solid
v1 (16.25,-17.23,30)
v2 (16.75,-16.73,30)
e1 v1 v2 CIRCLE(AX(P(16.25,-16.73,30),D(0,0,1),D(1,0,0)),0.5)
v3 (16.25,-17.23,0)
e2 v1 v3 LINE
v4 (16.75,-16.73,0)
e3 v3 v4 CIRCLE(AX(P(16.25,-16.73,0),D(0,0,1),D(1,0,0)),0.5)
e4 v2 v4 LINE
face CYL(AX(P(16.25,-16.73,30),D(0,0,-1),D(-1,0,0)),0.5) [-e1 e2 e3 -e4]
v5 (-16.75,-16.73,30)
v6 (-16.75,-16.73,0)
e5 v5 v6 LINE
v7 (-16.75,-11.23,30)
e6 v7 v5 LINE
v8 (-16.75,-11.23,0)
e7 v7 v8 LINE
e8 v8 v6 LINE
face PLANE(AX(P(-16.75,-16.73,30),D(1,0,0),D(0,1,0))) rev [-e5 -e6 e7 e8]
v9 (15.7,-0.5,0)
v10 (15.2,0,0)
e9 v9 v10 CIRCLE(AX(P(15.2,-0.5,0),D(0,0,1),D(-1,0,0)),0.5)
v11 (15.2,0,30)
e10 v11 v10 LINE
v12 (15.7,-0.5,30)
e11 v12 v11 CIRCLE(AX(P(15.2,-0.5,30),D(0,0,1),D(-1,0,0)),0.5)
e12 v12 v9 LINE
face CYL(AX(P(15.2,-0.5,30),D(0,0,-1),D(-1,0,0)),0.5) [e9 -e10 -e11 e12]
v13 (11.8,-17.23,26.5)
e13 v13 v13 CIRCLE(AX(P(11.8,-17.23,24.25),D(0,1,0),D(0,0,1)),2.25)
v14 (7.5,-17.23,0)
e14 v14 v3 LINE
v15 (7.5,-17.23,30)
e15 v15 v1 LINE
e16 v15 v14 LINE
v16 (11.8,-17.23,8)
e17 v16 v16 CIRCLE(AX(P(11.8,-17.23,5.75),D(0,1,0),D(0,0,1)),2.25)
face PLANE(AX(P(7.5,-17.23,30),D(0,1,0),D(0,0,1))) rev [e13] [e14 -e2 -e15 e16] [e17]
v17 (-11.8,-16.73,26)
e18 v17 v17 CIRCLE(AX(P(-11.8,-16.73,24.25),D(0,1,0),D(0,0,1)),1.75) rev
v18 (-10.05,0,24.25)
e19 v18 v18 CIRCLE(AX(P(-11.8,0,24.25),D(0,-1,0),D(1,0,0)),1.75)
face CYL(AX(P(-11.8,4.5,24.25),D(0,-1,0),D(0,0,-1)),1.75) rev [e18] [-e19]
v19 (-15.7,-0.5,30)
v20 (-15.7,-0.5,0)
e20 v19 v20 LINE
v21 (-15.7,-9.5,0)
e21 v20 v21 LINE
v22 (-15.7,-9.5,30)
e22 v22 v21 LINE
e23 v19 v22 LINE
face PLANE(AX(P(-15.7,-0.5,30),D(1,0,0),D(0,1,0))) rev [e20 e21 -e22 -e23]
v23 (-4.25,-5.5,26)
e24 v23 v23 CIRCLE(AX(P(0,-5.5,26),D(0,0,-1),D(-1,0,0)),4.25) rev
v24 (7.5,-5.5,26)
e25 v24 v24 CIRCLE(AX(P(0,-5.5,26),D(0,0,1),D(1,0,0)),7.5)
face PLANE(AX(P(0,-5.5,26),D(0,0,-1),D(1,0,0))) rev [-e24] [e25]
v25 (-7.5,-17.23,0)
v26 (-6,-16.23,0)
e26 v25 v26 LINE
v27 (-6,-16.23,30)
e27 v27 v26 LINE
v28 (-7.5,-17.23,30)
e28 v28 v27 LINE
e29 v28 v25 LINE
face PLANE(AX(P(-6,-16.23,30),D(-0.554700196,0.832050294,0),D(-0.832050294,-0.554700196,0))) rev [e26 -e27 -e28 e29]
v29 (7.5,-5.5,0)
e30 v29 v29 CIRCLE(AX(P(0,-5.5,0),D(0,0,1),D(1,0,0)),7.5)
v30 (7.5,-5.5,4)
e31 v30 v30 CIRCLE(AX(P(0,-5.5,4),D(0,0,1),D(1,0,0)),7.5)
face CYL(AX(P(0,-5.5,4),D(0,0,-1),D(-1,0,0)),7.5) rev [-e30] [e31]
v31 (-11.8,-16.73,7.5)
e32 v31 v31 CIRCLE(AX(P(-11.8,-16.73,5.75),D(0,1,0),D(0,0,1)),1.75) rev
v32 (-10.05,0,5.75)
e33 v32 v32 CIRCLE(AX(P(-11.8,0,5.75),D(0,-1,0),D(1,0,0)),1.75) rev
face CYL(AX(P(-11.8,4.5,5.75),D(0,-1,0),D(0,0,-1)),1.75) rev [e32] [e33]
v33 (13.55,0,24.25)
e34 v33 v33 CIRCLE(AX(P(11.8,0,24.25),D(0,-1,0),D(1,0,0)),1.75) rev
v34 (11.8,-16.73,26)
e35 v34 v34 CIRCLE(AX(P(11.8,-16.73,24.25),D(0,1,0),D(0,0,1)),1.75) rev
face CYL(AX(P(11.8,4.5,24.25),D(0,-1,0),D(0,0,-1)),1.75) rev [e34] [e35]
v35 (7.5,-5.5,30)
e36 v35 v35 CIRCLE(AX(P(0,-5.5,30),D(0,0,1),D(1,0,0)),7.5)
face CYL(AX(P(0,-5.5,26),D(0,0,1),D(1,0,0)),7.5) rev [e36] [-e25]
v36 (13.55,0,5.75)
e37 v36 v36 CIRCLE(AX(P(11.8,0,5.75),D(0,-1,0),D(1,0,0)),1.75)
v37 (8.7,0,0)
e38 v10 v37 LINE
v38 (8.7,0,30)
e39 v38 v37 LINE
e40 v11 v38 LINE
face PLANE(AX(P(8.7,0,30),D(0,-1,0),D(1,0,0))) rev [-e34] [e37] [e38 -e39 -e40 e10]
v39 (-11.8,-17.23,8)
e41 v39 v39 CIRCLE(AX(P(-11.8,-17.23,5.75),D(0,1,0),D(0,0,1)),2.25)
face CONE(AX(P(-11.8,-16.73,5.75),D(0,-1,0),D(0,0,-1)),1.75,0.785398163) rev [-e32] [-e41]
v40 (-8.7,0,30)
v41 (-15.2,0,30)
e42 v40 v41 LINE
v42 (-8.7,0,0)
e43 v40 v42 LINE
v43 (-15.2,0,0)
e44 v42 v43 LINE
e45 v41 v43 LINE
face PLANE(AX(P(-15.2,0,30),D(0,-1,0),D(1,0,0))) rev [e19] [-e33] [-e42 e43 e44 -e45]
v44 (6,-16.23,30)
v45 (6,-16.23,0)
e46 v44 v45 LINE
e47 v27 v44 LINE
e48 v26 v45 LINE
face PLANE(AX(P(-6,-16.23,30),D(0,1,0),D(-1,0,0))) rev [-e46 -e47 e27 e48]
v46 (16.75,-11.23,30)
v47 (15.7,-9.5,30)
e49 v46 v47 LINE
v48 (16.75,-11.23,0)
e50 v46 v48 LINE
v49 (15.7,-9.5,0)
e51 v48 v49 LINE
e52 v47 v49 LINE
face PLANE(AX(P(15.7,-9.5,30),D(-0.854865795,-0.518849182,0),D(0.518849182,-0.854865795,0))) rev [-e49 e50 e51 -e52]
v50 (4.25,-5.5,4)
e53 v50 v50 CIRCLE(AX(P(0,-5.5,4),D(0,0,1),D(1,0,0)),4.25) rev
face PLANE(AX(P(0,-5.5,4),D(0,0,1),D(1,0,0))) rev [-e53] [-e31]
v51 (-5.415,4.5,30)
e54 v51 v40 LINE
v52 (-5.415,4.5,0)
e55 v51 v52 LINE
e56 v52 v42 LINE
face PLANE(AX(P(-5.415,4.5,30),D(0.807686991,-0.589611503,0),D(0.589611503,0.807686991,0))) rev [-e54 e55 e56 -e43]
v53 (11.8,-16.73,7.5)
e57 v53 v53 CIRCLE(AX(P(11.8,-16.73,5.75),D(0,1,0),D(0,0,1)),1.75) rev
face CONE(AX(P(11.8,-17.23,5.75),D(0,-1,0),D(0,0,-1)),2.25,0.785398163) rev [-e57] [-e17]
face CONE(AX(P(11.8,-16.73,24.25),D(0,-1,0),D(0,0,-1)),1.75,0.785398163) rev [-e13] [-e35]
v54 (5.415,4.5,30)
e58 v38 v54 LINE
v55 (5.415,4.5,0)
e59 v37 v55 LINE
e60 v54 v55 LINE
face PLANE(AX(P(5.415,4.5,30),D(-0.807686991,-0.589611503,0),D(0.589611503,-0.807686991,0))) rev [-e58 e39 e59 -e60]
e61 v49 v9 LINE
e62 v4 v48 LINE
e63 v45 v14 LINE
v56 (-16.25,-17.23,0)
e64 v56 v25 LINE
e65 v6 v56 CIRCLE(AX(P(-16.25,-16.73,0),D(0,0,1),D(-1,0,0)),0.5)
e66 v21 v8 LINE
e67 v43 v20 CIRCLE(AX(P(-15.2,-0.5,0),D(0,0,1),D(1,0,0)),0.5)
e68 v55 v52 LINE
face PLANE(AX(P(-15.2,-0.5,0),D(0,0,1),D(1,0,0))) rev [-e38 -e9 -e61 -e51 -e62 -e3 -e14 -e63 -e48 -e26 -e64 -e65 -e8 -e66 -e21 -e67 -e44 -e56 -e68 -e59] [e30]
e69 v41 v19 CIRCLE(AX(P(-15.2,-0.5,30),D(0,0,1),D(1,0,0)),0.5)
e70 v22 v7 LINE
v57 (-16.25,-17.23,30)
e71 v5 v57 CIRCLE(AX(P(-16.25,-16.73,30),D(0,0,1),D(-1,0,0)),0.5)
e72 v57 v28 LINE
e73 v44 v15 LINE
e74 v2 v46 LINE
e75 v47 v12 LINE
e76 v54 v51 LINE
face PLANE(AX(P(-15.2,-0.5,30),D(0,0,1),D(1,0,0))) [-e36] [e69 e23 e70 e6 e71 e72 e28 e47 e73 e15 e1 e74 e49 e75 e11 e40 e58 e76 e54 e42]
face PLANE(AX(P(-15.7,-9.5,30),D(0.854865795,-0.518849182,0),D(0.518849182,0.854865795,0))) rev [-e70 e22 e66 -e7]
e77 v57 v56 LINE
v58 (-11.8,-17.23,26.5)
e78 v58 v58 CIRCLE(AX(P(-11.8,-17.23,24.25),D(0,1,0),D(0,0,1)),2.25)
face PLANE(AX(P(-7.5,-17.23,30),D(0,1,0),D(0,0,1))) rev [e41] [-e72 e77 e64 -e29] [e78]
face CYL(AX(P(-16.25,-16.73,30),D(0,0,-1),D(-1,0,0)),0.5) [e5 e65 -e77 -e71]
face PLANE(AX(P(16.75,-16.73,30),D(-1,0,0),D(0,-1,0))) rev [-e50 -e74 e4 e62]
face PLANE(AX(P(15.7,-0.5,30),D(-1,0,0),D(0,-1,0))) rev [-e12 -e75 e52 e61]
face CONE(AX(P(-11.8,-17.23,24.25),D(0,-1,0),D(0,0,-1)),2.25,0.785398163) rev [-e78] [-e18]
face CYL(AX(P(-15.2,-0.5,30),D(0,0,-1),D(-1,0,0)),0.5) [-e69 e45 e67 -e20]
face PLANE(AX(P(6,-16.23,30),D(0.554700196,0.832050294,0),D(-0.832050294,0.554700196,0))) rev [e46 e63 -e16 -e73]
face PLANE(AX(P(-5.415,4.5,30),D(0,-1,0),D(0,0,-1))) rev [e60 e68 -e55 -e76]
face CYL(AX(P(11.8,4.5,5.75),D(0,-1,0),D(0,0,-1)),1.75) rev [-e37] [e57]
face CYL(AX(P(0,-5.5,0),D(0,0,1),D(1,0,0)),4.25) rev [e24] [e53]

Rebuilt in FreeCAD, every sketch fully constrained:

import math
import FreeCAD as App
import Part
import Sketcher


def edges_at(feature, points):
    """Names of the edges that pass closest to the given points."""
    edges = feature.Shape.Edges
    near = lambda p: min(range(len(edges)), key=lambda i: edges[i].distToShape(Part.Vertex(*p))[0])
    return sorted({f"Edge{near(p) + 1}" for p in points})

doc = App.newDocument("Part")
body = doc.addObject("PartDesign::Body", "Body")

# Sketch on XY plane
sketch1 = body.newObject("Sketcher::SketchObject", "Sketch")
sketch1.AttachmentSupport = (doc.getObject("XY_Plane"), [""])
sketch1.MapMode = "FlatFace"
sketch1.addGeometry([
    Part.LineSegment(App.Vector(-8.7, 0, 0), App.Vector(-15.2, 0, 0)),  # 0
    Part.ArcOfCircle(Part.Circle(App.Vector(-15.2, -0.5, 0), App.Vector(0, 0, 1), 0.5), math.radians(90), math.radians(180)),  # 1
    Part.LineSegment(App.Vector(-15.7, -0.5, 0), App.Vector(-15.7, -9.5, 0)),  # 2
    Part.LineSegment(App.Vector(-15.7, -9.5, 0), App.Vector(-16.75, -11.23, 0)),  # 3
    Part.LineSegment(App.Vector(-16.75, -11.23, 0), App.Vector(-16.75, -16.73, 0)),  # 4
    Part.ArcOfCircle(Part.Circle(App.Vector(-16.25, -16.73, 0), App.Vector(0, 0, 1), 0.5), math.radians(180), math.radians(270)),  # 5
    Part.LineSegment(App.Vector(-16.25, -17.23, 0), App.Vector(-7.5, -17.23, 0)),  # 6
    Part.LineSegment(App.Vector(-7.5, -17.23, 0), App.Vector(-6, -16.23, 0)),  # 7
    Part.LineSegment(App.Vector(-6, -16.23, 0), App.Vector(6, -16.23, 0)),  # 8
    Part.LineSegment(App.Vector(6, -16.23, 0), App.Vector(7.5, -17.23, 0)),  # 9
    Part.LineSegment(App.Vector(7.5, -17.23, 0), App.Vector(16.25, -17.23, 0)),  # 10
    Part.ArcOfCircle(Part.Circle(App.Vector(16.25, -16.73, 0), App.Vector(0, 0, 1), 0.5), math.radians(-90), math.radians(0)),  # 11
    Part.LineSegment(App.Vector(16.75, -16.73, 0), App.Vector(16.75, -11.23, 0)),  # 12
    Part.LineSegment(App.Vector(16.75, -11.23, 0), App.Vector(15.7, -9.5, 0)),  # 13
    Part.LineSegment(App.Vector(15.7, -9.5, 0), App.Vector(15.7, -0.5, 0)),  # 14
    Part.ArcOfCircle(Part.Circle(App.Vector(15.2, -0.5, 0), App.Vector(0, 0, 1), 0.5), math.radians(0), math.radians(90)),  # 15
    Part.LineSegment(App.Vector(15.2, 0, 0), App.Vector(8.7, 0, 0)),  # 16
    Part.LineSegment(App.Vector(8.7, 0, 0), App.Vector(5.42, 4.5, 0)),  # 17
    Part.LineSegment(App.Vector(5.42, 4.5, 0), App.Vector(-5.42, 4.5, 0)),  # 18
    Part.LineSegment(App.Vector(-5.42, 4.5, 0), App.Vector(-8.7, 0, 0)),  # 19
], False)
sketch1.addConstraint([
    Sketcher.Constraint("Tangent", 0, 2, 1, 1),
    Sketcher.Constraint("Tangent", 1, 2, 2, 1),
    Sketcher.Constraint("Coincident", 2, 2, 3, 1),
    Sketcher.Constraint("Coincident", 3, 2, 4, 1),
    Sketcher.Constraint("Tangent", 4, 2, 5, 1),
    Sketcher.Constraint("Tangent", 5, 2, 6, 1),
    Sketcher.Constraint("Coincident", 6, 2, 7, 1),
    Sketcher.Constraint("Coincident", 7, 2, 8, 1),
    Sketcher.Constraint("Coincident", 8, 2, 9, 1),
    Sketcher.Constraint("Coincident", 9, 2, 10, 1),
    Sketcher.Constraint("Tangent", 10, 2, 11, 1),
    Sketcher.Constraint("Tangent", 11, 2, 12, 1),
    Sketcher.Constraint("Coincident", 12, 2, 13, 1),
    Sketcher.Constraint("Coincident", 13, 2, 14, 1),
    Sketcher.Constraint("Tangent", 14, 2, 15, 1),
    Sketcher.Constraint("Tangent", 15, 2, 16, 1),
    Sketcher.Constraint("Coincident", 16, 2, 17, 1),
    Sketcher.Constraint("Coincident", 17, 2, 18, 1),
    Sketcher.Constraint("Coincident", 18, 2, 19, 1),
    Sketcher.Constraint("Coincident", 19, 2, 0, 1),
    Sketcher.Constraint("Horizontal", 0),
    Sketcher.Constraint("Vertical", 2),
    Sketcher.Constraint("Vertical", 4),
    Sketcher.Constraint("Horizontal", 6),
    Sketcher.Constraint("Horizontal", 8),
    Sketcher.Constraint("Horizontal", 10),
    Sketcher.Constraint("Vertical", 12),
    Sketcher.Constraint("Vertical", 14),
    Sketcher.Constraint("Horizontal", 16),
    Sketcher.Constraint("Horizontal", 18),
    Sketcher.Constraint("Equal", 1, 5),
    Sketcher.Constraint("Equal", 5, 11),
    Sketcher.Constraint("Equal", 11, 15),
    Sketcher.Constraint("Symmetric", 0, 2, 15, 2, -1, 1),
    Sketcher.Constraint("Symmetric", 5, 3, 11, 3, -2),
    Sketcher.Constraint("Symmetric", 16, 2, 19, 2, -2),
    Sketcher.Constraint("Horizontal", 3, 2, 12, 2),
    Sketcher.Constraint("Horizontal", 2, 2, 13, 2),
    Sketcher.Constraint("Equal", 6, 10),
    Sketcher.Constraint("Equal", 7, 9),
    Sketcher.Constraint("Equal", 17, 19),
    Sketcher.Constraint("Radius", 1, 0.5),
    Sketcher.Constraint("DistanceX", 8, 1, 8, 2, 12.0),
    Sketcher.Constraint("DistanceY", 2, 2, 2, 1, 9.0),
    Sketcher.Constraint("DistanceX", 0, 2, 0, 1, 6.5),
    Sketcher.Constraint("DistanceY", 4, 2, 4, 1, 5.5),
    Sketcher.Constraint("DistanceY", 6, 2, 7, 2, 1.0),
    Sketcher.Constraint("DistanceX", 6, 2, 9, 2, 15.0),
    Sketcher.Constraint("DistanceY", 15, 3, 17, 2, 5.0),
    Sketcher.Constraint("DistanceX", 6, 1, 6, 2, 8.75),
    Sketcher.Constraint("DistanceX", 18, 2, 18, 1, 10.83),
    Sketcher.Constraint("DistanceX", 1, 3, -1, 1, 15.2),
    Sketcher.Constraint("DistanceY", 5, 3, -1, 1, 16.73),
])
pad1 = body.newObject("PartDesign::Pad", "Pad")
pad1.Profile = sketch1
pad1.Length = 30

# Sketch on XY plane
sketch2 = body.newObject("Sketcher::SketchObject", "Sketch001")
sketch2.AttachmentSupport = (doc.getObject("XY_Plane"), [""])
sketch2.MapMode = "FlatFace"
sketch2.addGeometry(Part.Circle(App.Vector(0, -6, 0), App.Vector(0, 0, 1), 8), False)
sketch2.addConstraint([
    Sketcher.Constraint("PointOnObject", 0, 3, -2),
    Sketcher.Constraint("Diameter", 0, 15.0),
    Sketcher.Constraint("DistanceY", 0, 3, -1, 1, 5.5),
])
pocket1 = body.newObject("PartDesign::Pocket", "Pocket")
pocket1.Profile = sketch2
pocket1.Length = 4
pocket1.Reversed = True
doc.recompute()

datumplane = body.newObject("PartDesign::Plane", "DatumPlane")
datumplane.AttachmentSupport = (doc.getObject("XY_Plane"), [""])
datumplane.MapMode = "FlatFace"
datumplane.AttachmentOffset = App.Placement(App.Vector(0, 0, 15), App.Rotation())
mirrored = body.newObject("PartDesign::Mirrored", "Mirrored")
mirrored.Originals = [pocket1]
mirrored.MirrorPlane = (datumplane, [""])
body.Tip = mirrored

# Sketch on XY plane
sketch3 = body.newObject("Sketcher::SketchObject", "Sketch002")
sketch3.AttachmentSupport = (doc.getObject("XY_Plane"), [""])
sketch3.MapMode = "FlatFace"
sketch3.AttachmentOffset = App.Placement(App.Vector(0, 0, 15), App.Rotation())
sketch3.addGeometry(Part.Circle(App.Vector(0, -5.5, 0), App.Vector(0, 0, 1), 4.2), False)
sketch3.addConstraint([
    Sketcher.Constraint("PointOnObject", 0, 3, -2),
    Sketcher.Constraint("Diameter", 0, 8.5),
    Sketcher.Constraint("DistanceY", 0, 3, -1, 1, 5.5),
])
pocket2 = body.newObject("PartDesign::Pocket", "Pocket001")
pocket2.Profile = sketch3
pocket2.Type = "ThroughAll"
pocket2.Midplane = True

# Sketch on XZ plane
sketch4 = body.newObject("Sketcher::SketchObject", "Sketch003")
sketch4.AttachmentSupport = (doc.getObject("XZ_Plane"), [""])
sketch4.MapMode = "FlatFace"
sketch4.AttachmentOffset = App.Placement(App.Vector(0, 0, 17.23), App.Rotation())
sketch4.addGeometry([
    Part.Circle(App.Vector(-11.8, 24.2, 0), App.Vector(0, 0, 1), 1.8),
    Part.Circle(App.Vector(11.8, 24.2, 0), App.Vector(0, 0, 1), 1.8),
    Part.Circle(App.Vector(11.8, 5.8, 0), App.Vector(0, 0, 1), 1.8),
    Part.Circle(App.Vector(-11.8, 5.8, 0), App.Vector(0, 0, 1), 1.8),
], False)
sketch4.addConstraint([
    Sketcher.Constraint("Equal", 0, 1),
    Sketcher.Constraint("Equal", 1, 2),
    Sketcher.Constraint("Equal", 2, 3),
    Sketcher.Constraint("Symmetric", 0, 3, 1, 3, -2),
    Sketcher.Constraint("Symmetric", 2, 3, 3, 3, -2),
    Sketcher.Constraint("Vertical", 1, 3, 2, 3),
    Sketcher.Constraint("Diameter", 0, 3.5),
    Sketcher.Constraint("DistanceX", 0, 3, -1, 1, 11.8),
    Sketcher.Constraint("DistanceY", 2, 3, 1, 3, 18.5),
    Sketcher.Constraint("DistanceY", -1, 1, 0, 3, 24.25),
])
pocket3 = body.newObject("PartDesign::Pocket", "Pocket002")
pocket3.Profile = sketch4
pocket3.Type = "ThroughAll"
pocket3.Midplane = True
doc.recompute()

chamfer = body.newObject("PartDesign::Chamfer", "Chamfer")
chamfer.Base = (pocket3, edges_at(pocket3, [
    (-13.55, -17.23, 5.75),
    (10.05, -17.23, 5.75),
    (10.05, -17.23, 24.25),
    (-13.55, -17.23, 24.25),
]))
chamfer.Size = 0.5

doc.recompute()
